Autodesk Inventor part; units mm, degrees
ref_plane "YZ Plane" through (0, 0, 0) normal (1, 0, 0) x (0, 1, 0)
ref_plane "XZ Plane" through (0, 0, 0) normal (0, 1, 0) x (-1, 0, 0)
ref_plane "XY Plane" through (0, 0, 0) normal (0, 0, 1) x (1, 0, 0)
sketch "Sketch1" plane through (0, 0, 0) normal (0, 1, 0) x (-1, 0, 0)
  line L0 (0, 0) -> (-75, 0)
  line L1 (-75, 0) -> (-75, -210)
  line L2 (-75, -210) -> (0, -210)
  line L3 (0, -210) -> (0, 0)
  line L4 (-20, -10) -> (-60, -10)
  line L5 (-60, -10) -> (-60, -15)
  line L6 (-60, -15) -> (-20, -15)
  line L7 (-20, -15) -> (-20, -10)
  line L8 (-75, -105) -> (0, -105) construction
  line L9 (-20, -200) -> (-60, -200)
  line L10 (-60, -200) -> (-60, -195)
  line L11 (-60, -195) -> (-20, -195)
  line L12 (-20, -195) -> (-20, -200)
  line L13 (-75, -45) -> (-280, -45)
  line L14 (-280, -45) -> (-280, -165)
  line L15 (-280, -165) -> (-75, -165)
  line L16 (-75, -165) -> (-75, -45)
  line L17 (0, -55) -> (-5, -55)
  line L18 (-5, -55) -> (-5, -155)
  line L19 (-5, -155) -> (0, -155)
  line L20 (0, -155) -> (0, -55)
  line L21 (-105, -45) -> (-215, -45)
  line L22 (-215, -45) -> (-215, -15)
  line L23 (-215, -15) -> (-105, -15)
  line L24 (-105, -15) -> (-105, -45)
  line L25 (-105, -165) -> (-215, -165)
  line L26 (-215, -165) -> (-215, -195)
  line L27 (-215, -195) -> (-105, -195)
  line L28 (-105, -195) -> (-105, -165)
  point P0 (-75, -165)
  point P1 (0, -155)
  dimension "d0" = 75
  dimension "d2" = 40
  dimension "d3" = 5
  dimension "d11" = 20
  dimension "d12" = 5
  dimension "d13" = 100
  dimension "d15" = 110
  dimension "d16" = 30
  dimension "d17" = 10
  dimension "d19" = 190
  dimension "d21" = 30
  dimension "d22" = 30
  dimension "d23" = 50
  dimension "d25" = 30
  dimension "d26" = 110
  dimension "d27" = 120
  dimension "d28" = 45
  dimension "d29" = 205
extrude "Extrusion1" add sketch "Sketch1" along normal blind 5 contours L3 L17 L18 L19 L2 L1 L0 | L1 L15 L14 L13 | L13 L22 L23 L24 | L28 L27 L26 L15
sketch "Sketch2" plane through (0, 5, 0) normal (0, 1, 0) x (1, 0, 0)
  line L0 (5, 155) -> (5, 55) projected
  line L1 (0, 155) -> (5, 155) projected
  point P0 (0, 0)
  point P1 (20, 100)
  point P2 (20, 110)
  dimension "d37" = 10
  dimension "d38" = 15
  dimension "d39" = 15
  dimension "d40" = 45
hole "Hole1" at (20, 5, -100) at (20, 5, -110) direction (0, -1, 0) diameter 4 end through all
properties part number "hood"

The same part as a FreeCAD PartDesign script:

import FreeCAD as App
import Part
import Sketcher


def add_polygon(sketch, points):
    """Adds a closed chain of lines whose ends are joined by coincident constraints."""
    first, n = sketch.GeometryCount, len(points)
    for a, b in zip(points, points[1:] + points[:1]):
        sketch.addGeometry(Part.LineSegment(App.Vector(*a, 0), App.Vector(*b, 0)), False)
    for i in range(n):
        sketch.addConstraint(Sketcher.Constraint("Coincident", first + i, 2, first + (i + 1) % n, 1))

doc = App.newDocument("Part")
body = doc.addObject("PartDesign::Body", "Body")

# Sketch on XZ plane
sketch1 = body.newObject("Sketcher::SketchObject", "Sketch")
sketch1.AttachmentSupport = (doc.getObject("XZ_Plane"), [""])
sketch1.MapMode = "FlatFace"
add_polygon(sketch1, [(0, -55), (0, 0), (75, 0), (75, -45), (105, -45), (105, -15), (215, -15), (215, -45), (280, -45), (280, -165), (215, -165), (215, -195), (105, -195), (105, -165), (75, -165), (75, -210), (0, -210), (0, -155), (5, -155), (5, -55)])  # lines 0-19
add_polygon(sketch1, [(20, -195), (20, -200), (60, -200), (60, -195)])  # lines 20-23
add_polygon(sketch1, [(60, -10), (20, -10), (20, -15), (60, -15)])  # lines 24-27
sketch1.addConstraint([
    Sketcher.Constraint("Vertical", 0),
    Sketcher.Constraint("Horizontal", 1),
    Sketcher.Constraint("Vertical", 2),
    Sketcher.Constraint("Horizontal", 3),
    Sketcher.Constraint("Vertical", 4),
    Sketcher.Constraint("Horizontal", 5),
    Sketcher.Constraint("Vertical", 6),
    Sketcher.Constraint("Horizontal", 7),
    Sketcher.Constraint("Vertical", 8),
    Sketcher.Constraint("Horizontal", 9),
    Sketcher.Constraint("Vertical", 10),
    Sketcher.Constraint("Horizontal", 11),
    Sketcher.Constraint("Vertical", 12),
    Sketcher.Constraint("Horizontal", 13),
    Sketcher.Constraint("Vertical", 14),
    Sketcher.Constraint("Horizontal", 15),
    Sketcher.Constraint("Vertical", 16),
    Sketcher.Constraint("Horizontal", 17),
    Sketcher.Constraint("Vertical", 18),
    Sketcher.Constraint("Horizontal", 19),
    Sketcher.Constraint("Vertical", 20),
    Sketcher.Constraint("Horizontal", 21),
    Sketcher.Constraint("Vertical", 22),
    Sketcher.Constraint("Horizontal", 23),
    Sketcher.Constraint("Horizontal", 24),
    Sketcher.Constraint("Vertical", 25),
    Sketcher.Constraint("Horizontal", 26),
    Sketcher.Constraint("Vertical", 27),
    Sketcher.Constraint("Coincident", 0, 2, -1, 1),
    Sketcher.Constraint("PointOnObject", 15, 2, -2),
    Sketcher.Constraint("Horizontal", 3, 2, 6, 2),
    Sketcher.Constraint("Horizontal", 9, 2, 12, 2),
    Sketcher.Constraint("Horizontal", 11, 2, 22, 2),
    Sketcher.Constraint("Horizontal", 5, 2, 25, 2),
    Sketcher.Constraint("Vertical", 6, 2, 9, 2),
    Sketcher.Constraint("Vertical", 4, 2, 11, 2),
    Sketcher.Constraint("Vertical", 2, 2, 13, 2),
    Sketcher.Constraint("Vertical", 23, 2, 24, 2),
    Sketcher.Constraint("Vertical", 22, 2, 26, 2),
    Sketcher.Constraint("Equal", 13, 4),
    Sketcher.Constraint("Equal", 6, 10),
    Sketcher.Constraint("Equal", 2, 14),
    Sketcher.Constraint("Equal", 0, 16),
    Sketcher.Constraint("Equal", 19, 20),
    Sketcher.Constraint("Equal", 22, 25),
    Sketcher.Constraint("DistanceX", 1, 1, 1, 2, 75.0),
    Sketcher.Constraint("DistanceX", 3, 1, 3, 2, 30.0),
    Sketcher.Constraint("DistanceX", 5, 1, 5, 2, 110.0),
    Sketcher.Constraint("DistanceX", 17, 1, 17, 2, 5.0),
    Sketcher.Constraint("DistanceX", 21, 1, 21, 2, 40.0),
    Sketcher.Constraint("DistanceY", 2, 2, 2, 1, 45.0),
    Sketcher.Constraint("DistanceY", 8, 2, 8, 1, 120.0),
    Sketcher.Constraint("DistanceY", 18, 1, 18, 2, 100.0),
    Sketcher.Constraint("DistanceX", -1, 1, 20, 2, 20.0),
    Sketcher.Constraint("DistanceX", 2, 2, 7, 2, 205.0),
])
pad1 = body.newObject("PartDesign::Pad", "Pad")
pad1.Profile = sketch1
pad1.Length = 5
pad1.Reversed = True

# Sketch on XZ plane
sketch2 = body.newObject("Sketcher::SketchObject", "Sketch001")
sketch2.AttachmentSupport = (doc.getObject("XZ_Plane"), [""])
sketch2.MapMode = "FlatFace"
sketch2.AttachmentOffset = App.Placement(App.Vector(0, 0, -5), App.Rotation())
sketch2.addGeometry([
    Part.Circle(App.Vector(20, -100, 0), App.Vector(0, 0, 1), 2),
    Part.Circle(App.Vector(20, -110, 0), App.Vector(0, 0, 1), 2),
], False)
sketch2.addConstraint([
    Sketcher.Constraint("Equal", 0, 1),
    Sketcher.Constraint("Vertical", 0, 3, 1, 3),
    Sketcher.Constraint("Diameter", 0, 4.0),
    Sketcher.Constraint("DistanceX", -1, 1, 0, 3, 20.0),
    Sketcher.Constraint("DistanceY", 0, 3, -1, 1, 100.0),
    Sketcher.Constraint("DistanceY", 1, 3, -1, 1, 110.0),
])
doc.recompute()
hole = body.newObject("PartDesign::Hole", "Hole")
hole.Profile = sketch2
hole.ThreadType = "None"
hole.Diameter = 4
hole.DepthType = "ThroughAll"
hole.Reversed = True

doc.recompute()
